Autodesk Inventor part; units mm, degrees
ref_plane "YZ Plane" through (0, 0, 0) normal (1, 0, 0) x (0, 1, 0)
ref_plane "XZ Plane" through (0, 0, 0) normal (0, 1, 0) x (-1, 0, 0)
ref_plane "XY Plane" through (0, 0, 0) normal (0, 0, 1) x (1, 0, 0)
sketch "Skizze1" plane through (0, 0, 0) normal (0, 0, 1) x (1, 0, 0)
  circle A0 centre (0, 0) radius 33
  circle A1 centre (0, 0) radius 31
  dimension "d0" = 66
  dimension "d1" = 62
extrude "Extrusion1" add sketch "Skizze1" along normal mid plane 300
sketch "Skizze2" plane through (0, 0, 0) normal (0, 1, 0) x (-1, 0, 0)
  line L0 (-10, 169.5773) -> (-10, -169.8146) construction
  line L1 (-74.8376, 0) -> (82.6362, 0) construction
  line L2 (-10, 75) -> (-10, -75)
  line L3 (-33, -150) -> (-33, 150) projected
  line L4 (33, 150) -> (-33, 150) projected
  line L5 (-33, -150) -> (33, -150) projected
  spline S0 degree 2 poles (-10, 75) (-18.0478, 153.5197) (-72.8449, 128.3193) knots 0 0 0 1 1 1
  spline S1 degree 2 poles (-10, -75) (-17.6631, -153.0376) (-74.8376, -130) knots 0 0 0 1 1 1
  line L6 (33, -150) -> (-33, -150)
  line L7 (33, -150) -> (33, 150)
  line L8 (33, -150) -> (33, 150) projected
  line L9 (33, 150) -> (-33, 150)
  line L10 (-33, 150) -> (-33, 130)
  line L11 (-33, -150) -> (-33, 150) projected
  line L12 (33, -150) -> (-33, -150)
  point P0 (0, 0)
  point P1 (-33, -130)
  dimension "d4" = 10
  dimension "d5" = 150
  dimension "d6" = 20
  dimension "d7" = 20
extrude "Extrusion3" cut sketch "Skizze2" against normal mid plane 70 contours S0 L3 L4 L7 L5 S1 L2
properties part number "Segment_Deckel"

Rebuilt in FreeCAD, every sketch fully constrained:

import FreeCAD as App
import Part
import Sketcher
from FreeCAD import Vector

doc = App.newDocument("Part")
body = doc.addObject("PartDesign::Body", "Body")

# Sketch on XY plane
sketch1 = body.newObject("Sketcher::SketchObject", "Sketch")
sketch1.AttachmentSupport = (doc.getObject("XY_Plane"), [""])
sketch1.MapMode = "FlatFace"
sketch1.addGeometry(Part.Circle(Vector(0, 0, 0), Vector(0, 0, 1), 33), False)
sketch1.addGeometry(Part.Circle(Vector(0, 0, 0), Vector(0, 0, 1), 31), False)
sketch1.addConstraint(Sketcher.Constraint("Coincident", 0, 3, -1, 1))
sketch1.addConstraint(Sketcher.Constraint("Coincident", 1, 3, -1, 1))
sketch1.addConstraint(Sketcher.Constraint("Diameter", 0, 66.0))
sketch1.addConstraint(Sketcher.Constraint("Diameter", 1, 62.0))
pad1 = body.newObject("PartDesign::Pad", "Pad")
pad1.Profile = sketch1
pad1.Length = 300
pad1.Midplane = True

# Sketch on XZ plane
sketch2 = body.newObject("Sketcher::SketchObject", "Sketch001")
sketch2.AttachmentSupport = (doc.getObject("XZ_Plane"), [""])
sketch2.MapMode = "FlatFace"
sketch2.addGeometry(Part.BSplineCurve([Vector(10, 75, 0), Vector(14.426976, 118.192529, 0), Vector(33, 130, 0)], [3, 3], [0, 0.550085252], False, 2, [1, 1, 1], False), False)
sketch2.addGeometry(Part.LineSegment(Vector(10, 75, 0), Vector(10, -75, 0)), False)
sketch2.addGeometry(Part.BSplineCurve([Vector(10, -75, 0), Vector(14.169872, -117.464116, 0), Vector(33, -130.000006, 0)], [3, 3], [0, 0.54414944], False, 2, [1, 1, 1], False), False)
sketch2.addGeometry(Part.LineSegment(Vector(33, -130.000006, 0), Vector(33, -150, 0)), False)
sketch2.addGeometry(Part.LineSegment(Vector(33, -150, 0), Vector(-33, -150, 0)), False)
sketch2.addGeometry(Part.LineSegment(Vector(-33, -150, 0), Vector(-33, 150, 0)), False)
sketch2.addGeometry(Part.LineSegment(Vector(-33, 150, 0), Vector(33, 150, 0)), False)
sketch2.addGeometry(Part.LineSegment(Vector(33, 150, 0), Vector(33, 130, 0)), False)
sketch2.addConstraint(Sketcher.Constraint("Block", 0))
sketch2.addConstraint(Sketcher.Constraint("Block", 2))
sketch2.addConstraint(Sketcher.Constraint("Coincident", 0, 1, 1, 1))
sketch2.addConstraint(Sketcher.Constraint("Coincident", 1, 2, 2, 1))
sketch2.addConstraint(Sketcher.Constraint("Coincident", 2, 2, 3, 1))
sketch2.addConstraint(Sketcher.Constraint("Coincident", 3, 2, 4, 1))
sketch2.addConstraint(Sketcher.Constraint("Coincident", 4, 2, 5, 1))
sketch2.addConstraint(Sketcher.Constraint("Coincident", 5, 2, 6, 1))
sketch2.addConstraint(Sketcher.Constraint("Coincident", 6, 2, 7, 1))
sketch2.addConstraint(Sketcher.Constraint("Coincident", 7, 2, 0, 2))
sketch2.addConstraint(Sketcher.Constraint("Vertical", 3))
sketch2.addConstraint(Sketcher.Constraint("Horizontal", 4))
sketch2.addConstraint(Sketcher.Constraint("Vertical", 5))
sketch2.addConstraint(Sketcher.Constraint("Horizontal", 6))
sketch2.addConstraint(Sketcher.Constraint("Vertical", 7))
sketch2.addConstraint(Sketcher.Constraint("Symmetric", 3, 2, 5, 2, -1, 1))
sketch2.addConstraint(Sketcher.Constraint("DistanceY", 3, 2, 3, 1, 20.0))
pocket1 = body.newObject("PartDesign::Pocket", "Pocket")
pocket1.Profile = sketch2
pocket1.Length = 70
pocket1.Midplane = True

doc.recompute()
